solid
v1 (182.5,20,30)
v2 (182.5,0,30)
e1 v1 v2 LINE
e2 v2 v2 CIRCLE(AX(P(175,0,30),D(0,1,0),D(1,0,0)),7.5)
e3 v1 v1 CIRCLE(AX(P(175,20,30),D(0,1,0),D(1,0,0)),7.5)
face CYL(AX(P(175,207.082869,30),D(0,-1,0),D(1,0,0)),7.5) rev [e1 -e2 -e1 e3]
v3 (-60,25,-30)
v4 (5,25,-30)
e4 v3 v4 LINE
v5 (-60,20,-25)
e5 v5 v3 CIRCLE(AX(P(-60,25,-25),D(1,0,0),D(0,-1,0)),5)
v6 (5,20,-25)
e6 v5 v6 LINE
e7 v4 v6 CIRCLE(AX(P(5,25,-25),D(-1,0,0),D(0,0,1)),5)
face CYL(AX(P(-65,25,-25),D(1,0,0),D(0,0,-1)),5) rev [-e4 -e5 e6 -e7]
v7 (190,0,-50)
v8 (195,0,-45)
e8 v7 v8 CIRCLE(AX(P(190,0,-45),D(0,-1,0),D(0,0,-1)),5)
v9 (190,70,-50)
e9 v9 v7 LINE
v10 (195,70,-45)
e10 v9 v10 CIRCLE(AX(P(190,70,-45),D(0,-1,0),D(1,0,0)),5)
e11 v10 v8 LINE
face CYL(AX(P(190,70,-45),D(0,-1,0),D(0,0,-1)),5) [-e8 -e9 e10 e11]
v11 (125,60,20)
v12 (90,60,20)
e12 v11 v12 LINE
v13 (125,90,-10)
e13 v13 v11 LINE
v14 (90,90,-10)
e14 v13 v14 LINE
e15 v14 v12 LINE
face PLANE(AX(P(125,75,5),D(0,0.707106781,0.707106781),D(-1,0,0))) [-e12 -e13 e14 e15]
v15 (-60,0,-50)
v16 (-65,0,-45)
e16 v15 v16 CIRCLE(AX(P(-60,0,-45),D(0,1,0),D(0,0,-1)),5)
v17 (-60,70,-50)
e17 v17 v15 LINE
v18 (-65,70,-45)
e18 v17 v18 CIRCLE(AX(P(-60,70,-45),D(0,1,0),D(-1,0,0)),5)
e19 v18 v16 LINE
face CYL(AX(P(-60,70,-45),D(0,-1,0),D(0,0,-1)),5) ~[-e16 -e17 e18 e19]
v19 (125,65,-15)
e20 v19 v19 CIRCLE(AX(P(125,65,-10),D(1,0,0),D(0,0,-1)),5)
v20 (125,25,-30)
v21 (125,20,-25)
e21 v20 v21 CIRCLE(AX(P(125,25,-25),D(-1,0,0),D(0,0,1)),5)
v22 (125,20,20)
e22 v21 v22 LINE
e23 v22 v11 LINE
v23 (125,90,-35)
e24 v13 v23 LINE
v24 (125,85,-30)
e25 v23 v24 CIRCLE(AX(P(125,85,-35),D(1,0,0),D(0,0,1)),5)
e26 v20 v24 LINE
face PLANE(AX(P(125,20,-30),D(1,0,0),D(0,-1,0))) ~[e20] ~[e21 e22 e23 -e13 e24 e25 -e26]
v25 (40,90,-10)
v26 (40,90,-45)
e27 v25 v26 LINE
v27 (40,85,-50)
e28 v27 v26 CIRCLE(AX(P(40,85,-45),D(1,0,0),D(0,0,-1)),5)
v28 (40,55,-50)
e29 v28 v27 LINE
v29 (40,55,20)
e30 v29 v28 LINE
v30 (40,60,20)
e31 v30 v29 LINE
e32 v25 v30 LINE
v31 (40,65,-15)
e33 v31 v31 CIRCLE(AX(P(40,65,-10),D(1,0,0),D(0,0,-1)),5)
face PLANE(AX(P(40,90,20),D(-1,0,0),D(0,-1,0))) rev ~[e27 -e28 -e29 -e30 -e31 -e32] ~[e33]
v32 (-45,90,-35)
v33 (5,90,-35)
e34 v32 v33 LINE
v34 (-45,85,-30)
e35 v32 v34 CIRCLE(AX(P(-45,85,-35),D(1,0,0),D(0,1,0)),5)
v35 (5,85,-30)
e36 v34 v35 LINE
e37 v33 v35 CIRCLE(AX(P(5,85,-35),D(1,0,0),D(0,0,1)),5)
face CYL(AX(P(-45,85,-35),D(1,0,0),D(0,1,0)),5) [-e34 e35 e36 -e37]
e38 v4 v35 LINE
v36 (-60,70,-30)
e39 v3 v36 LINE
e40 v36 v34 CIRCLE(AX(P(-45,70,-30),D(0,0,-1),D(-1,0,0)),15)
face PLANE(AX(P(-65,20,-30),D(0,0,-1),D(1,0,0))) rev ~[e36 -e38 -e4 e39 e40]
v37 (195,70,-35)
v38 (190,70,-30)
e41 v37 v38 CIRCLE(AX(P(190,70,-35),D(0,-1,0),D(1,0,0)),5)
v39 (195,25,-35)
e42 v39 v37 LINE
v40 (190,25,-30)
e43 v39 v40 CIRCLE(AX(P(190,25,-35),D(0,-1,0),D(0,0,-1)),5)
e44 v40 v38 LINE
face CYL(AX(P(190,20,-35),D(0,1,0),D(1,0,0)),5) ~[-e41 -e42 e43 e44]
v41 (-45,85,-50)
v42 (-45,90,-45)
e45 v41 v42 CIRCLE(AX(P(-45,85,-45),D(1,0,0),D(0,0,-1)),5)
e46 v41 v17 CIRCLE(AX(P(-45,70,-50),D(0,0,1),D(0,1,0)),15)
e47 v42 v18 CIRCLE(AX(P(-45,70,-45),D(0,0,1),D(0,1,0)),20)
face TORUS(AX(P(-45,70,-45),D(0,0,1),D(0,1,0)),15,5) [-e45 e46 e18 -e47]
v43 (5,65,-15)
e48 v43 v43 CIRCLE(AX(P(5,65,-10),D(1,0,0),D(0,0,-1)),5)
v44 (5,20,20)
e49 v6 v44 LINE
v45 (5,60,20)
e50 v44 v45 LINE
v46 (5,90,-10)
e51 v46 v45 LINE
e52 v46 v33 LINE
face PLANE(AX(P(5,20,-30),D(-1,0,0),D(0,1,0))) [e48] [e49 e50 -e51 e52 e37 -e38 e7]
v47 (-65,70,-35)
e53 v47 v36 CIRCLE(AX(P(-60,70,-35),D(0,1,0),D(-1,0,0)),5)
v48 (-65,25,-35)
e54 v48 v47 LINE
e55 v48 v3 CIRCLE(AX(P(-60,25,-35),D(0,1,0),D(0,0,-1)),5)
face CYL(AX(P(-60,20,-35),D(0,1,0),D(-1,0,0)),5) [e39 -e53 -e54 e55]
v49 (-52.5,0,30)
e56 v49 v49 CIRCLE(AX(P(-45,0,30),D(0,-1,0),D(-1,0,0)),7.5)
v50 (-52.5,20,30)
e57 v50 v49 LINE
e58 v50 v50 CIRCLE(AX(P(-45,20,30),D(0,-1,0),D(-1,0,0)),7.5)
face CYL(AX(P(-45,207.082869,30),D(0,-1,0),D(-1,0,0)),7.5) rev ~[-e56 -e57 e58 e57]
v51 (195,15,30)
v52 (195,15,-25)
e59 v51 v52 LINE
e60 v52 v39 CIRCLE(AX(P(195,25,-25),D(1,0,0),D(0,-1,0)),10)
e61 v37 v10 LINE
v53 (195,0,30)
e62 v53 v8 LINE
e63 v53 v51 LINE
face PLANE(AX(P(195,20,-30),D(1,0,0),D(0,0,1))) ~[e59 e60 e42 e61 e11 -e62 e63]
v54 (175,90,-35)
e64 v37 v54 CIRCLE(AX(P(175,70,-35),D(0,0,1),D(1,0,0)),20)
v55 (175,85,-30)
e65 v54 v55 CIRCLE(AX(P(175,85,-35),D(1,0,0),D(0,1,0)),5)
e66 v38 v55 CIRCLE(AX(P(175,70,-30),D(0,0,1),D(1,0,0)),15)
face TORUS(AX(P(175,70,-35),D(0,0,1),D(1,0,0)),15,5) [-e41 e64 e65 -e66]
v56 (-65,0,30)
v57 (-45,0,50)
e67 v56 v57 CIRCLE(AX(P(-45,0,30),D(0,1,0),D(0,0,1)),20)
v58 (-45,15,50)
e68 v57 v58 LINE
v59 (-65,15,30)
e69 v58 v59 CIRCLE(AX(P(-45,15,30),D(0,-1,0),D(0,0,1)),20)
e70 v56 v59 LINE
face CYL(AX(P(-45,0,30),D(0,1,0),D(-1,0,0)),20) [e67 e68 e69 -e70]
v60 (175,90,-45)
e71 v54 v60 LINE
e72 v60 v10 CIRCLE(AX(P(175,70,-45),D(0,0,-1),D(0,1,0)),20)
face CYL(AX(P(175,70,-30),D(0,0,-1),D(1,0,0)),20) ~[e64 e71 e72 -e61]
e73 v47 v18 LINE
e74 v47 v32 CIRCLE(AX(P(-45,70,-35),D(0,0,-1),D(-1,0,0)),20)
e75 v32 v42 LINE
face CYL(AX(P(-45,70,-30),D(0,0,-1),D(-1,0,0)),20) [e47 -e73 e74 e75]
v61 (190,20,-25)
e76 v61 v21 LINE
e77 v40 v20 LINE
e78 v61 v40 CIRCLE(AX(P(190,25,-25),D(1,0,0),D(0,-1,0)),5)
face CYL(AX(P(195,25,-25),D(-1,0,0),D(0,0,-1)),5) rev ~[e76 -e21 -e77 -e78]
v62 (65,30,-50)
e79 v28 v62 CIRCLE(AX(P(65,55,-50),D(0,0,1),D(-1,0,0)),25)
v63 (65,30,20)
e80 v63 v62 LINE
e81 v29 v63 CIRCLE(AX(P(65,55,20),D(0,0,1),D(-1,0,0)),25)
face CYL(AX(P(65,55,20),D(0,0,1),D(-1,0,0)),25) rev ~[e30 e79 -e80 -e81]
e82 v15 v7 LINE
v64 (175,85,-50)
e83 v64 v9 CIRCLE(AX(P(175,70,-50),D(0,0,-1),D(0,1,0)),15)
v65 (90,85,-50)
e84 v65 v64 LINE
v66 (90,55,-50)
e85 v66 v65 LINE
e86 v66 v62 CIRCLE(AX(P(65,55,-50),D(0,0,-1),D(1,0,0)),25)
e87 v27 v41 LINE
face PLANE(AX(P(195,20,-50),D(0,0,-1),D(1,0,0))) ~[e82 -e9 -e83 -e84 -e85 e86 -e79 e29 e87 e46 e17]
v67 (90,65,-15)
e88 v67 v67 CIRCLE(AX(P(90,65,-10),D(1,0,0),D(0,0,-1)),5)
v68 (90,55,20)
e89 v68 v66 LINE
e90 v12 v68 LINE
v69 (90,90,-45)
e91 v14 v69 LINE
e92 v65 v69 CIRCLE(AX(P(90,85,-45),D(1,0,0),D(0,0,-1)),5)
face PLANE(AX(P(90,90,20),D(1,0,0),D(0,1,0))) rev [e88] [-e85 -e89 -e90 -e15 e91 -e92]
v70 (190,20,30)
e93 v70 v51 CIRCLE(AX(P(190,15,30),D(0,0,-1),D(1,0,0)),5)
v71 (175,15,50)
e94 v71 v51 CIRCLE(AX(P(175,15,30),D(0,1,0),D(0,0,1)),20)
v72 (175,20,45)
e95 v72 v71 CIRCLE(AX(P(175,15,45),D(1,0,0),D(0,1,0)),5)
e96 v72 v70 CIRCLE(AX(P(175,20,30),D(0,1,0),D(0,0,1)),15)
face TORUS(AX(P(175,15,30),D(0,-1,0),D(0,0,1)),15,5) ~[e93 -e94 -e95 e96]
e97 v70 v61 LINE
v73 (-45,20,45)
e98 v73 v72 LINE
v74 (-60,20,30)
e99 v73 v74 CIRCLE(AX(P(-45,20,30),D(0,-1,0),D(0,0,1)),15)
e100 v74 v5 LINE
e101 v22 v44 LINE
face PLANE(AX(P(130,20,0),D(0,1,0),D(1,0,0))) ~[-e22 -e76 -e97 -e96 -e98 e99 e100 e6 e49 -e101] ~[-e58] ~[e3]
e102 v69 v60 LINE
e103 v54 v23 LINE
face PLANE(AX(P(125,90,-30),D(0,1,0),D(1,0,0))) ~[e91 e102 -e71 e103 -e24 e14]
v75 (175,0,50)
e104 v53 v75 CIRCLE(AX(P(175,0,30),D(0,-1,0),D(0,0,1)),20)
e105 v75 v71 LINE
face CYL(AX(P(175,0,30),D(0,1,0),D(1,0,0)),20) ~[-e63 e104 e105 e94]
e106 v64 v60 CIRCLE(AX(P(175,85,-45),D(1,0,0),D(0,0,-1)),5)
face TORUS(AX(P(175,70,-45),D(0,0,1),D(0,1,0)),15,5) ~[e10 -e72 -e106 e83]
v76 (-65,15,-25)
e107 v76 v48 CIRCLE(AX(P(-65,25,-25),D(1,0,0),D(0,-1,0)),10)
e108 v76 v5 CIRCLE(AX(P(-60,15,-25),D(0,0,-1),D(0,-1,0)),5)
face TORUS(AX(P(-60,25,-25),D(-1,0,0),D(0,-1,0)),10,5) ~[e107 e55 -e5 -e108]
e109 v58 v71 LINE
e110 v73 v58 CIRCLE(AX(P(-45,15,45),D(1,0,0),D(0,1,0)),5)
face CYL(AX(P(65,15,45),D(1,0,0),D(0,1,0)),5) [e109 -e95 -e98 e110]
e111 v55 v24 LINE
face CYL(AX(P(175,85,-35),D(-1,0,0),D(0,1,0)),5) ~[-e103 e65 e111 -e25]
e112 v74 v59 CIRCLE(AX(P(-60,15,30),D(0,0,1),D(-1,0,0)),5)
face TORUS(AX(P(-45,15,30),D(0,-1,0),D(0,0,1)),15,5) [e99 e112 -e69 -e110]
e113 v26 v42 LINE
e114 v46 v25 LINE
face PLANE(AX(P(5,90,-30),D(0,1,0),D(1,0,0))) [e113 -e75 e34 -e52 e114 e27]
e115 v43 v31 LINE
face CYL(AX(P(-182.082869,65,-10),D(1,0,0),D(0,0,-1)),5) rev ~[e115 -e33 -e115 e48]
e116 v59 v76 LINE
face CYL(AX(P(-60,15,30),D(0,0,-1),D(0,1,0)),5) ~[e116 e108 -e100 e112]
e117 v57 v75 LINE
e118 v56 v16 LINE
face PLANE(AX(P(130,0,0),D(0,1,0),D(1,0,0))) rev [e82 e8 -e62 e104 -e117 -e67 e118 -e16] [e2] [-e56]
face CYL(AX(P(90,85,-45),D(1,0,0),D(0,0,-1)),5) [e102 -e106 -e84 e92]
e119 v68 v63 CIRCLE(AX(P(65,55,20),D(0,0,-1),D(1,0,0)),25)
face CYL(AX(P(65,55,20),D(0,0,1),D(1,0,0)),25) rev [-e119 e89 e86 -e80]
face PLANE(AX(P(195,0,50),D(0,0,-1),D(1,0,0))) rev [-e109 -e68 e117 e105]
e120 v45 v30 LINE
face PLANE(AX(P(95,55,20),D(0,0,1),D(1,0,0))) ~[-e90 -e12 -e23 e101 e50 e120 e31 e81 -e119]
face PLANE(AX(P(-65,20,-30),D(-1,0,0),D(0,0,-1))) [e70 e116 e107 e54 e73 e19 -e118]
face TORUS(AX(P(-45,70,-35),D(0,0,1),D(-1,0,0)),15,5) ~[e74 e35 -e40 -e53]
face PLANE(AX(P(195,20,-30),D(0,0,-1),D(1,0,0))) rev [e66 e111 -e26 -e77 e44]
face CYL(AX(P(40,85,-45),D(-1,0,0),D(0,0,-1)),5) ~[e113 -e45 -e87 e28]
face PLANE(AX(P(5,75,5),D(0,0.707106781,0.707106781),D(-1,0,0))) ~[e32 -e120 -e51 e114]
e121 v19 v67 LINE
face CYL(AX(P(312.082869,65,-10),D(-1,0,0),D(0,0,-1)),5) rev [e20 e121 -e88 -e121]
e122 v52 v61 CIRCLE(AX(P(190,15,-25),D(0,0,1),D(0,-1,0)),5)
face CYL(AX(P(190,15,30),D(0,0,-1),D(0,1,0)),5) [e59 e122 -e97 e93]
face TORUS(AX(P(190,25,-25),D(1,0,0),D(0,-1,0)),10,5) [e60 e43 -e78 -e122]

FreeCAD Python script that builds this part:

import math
import FreeCAD as App
import Part
import Sketcher


def edges_at(feature, points):
    """Names of the edges that pass closest to the given points."""
    edges = feature.Shape.Edges
    near = lambda p: min(range(len(edges)), key=lambda i: edges[i].distToShape(Part.Vertex(*p))[0])
    return sorted({f"Edge{near(p) + 1}" for p in points})


def add_polygon(sketch, points):
    """Adds a closed chain of lines whose ends are joined by coincident constraints."""
    first, n = sketch.GeometryCount, len(points)
    for a, b in zip(points, points[1:] + points[:1]):
        sketch.addGeometry(Part.LineSegment(App.Vector(*a, 0), App.Vector(*b, 0)), False)
    for i in range(n):
        sketch.addConstraint(Sketcher.Constraint("Coincident", first + i, 2, first + (i + 1) % n, 1))

doc = App.newDocument("Part")
body = doc.addObject("PartDesign::Body", "Body")

# Sketch on XZ plane
sketch1 = body.newObject("Sketcher::SketchObject", "Sketch")
sketch1.AttachmentSupport = (doc.getObject("XZ_Plane"), [""])
sketch1.MapMode = "FlatFace"
add_polygon(sketch1, [(-65, -50), (-65, 50), (65, 50), (65, -50)])  # lines 0-3
sketch1.addConstraint([
    Sketcher.Constraint("Vertical", 0),
    Sketcher.Constraint("Horizontal", 1),
    Sketcher.Constraint("Vertical", 2),
    Sketcher.Constraint("Horizontal", 3),
    Sketcher.Constraint("Symmetric", 0, 2, 2, 2, -1, 1),
    Sketcher.Constraint("DistanceX", 1, 1, 1, 2, 130.0),
    Sketcher.Constraint("DistanceY", 0, 1, 0, 2, 100.0),
])
pad1 = body.newObject("PartDesign::Pad", "Pad")
pad1.Profile = sketch1
pad1.Length = 20
pad1.Reversed = True

# Sketch on XZ plane
sketch2 = body.newObject("Sketcher::SketchObject", "Sketch001")
sketch2.AttachmentSupport = (doc.getObject("XZ_Plane"), [""])
sketch2.MapMode = "FlatFace"
sketch2.AttachmentOffset = App.Placement(App.Vector(0, 0, -20), App.Rotation())
add_polygon(sketch2, [(-65, -50), (-65, -30), (65, -30), (65, -50)])  # lines 0-3
sketch2.addConstraint([
    Sketcher.Constraint("Vertical", 0),
    Sketcher.Constraint("Horizontal", 1),
    Sketcher.Constraint("Vertical", 2),
    Sketcher.Constraint("Horizontal", 3),
    Sketcher.Constraint("DistanceX", 1, 1, 1, 2, 130.0),
    Sketcher.Constraint("DistanceY", 0, 1, 0, 2, 20.0),
    Sketcher.Constraint("DistanceX", 0, 2, -1, 1, 65.0),
    Sketcher.Constraint("DistanceY", 0, 2, -1, 1, 30.0),
])
pad2 = body.newObject("PartDesign::Pad", "Pad001")
pad2.Profile = sketch2
pad2.Length = 70
pad2.Reversed = True
doc.recompute()

fillet = body.newObject("PartDesign::Fillet", "Fillet")
fillet.Base = (pad2, edges_at(pad2, [(-65, 10, 50), (-65, 90, -40)]))
fillet.Radius = 20

# Sketch on XY plane
sketch3 = body.newObject("Sketcher::SketchObject", "Sketch002")
sketch3.AttachmentSupport = (doc.getObject("XY_Plane"), [""])
sketch3.MapMode = "FlatFace"
sketch3.AttachmentOffset = App.Placement(App.Vector(0, 0, -30), App.Rotation())
add_polygon(sketch3, [(5, 90), (5, 20), (65, 20), (65, 90)])  # lines 0-3
sketch3.addConstraint([
    Sketcher.Constraint("Vertical", 0),
    Sketcher.Constraint("Horizontal", 1),
    Sketcher.Constraint("Vertical", 2),
    Sketcher.Constraint("Horizontal", 3),
    Sketcher.Constraint("DistanceX", 1, 1, 1, 2, 60.0),
    Sketcher.Constraint("DistanceY", 0, 2, 0, 1, 70.0),
    Sketcher.Constraint("DistanceX", -1, 1, 0, 2, 5.0),
    Sketcher.Constraint("DistanceY", -1, 1, 0, 2, 20.0),
])
pad3 = body.newObject("PartDesign::Pad", "Pad002")
pad3.Profile = sketch3
pad3.Length = 50

# Sketch on XY plane
sketch4 = body.newObject("Sketcher::SketchObject", "Sketch003")
sketch4.AttachmentSupport = (doc.getObject("XY_Plane"), [""])
sketch4.MapMode = "FlatFace"
sketch4.AttachmentOffset = App.Placement(App.Vector(0, 0, 20), App.Rotation())
sketch4.addGeometry([
    Part.LineSegment(App.Vector(40, 90, 0), App.Vector(40, 55, 0)),
    Part.ArcOfCircle(Part.Circle(App.Vector(65, 55, 0), App.Vector(0, 0, 1), 25), math.radians(180), math.radians(270)),
    Part.LineSegment(App.Vector(65, 30, 0), App.Vector(65, 90, 0)),
    Part.LineSegment(App.Vector(65, 90, 0), App.Vector(40, 90, 0)),
], False)
sketch4.addConstraint([
    Sketcher.Constraint("Tangent", 0, 2, 1, 1),
    Sketcher.Constraint("Coincident", 1, 2, 2, 1),
    Sketcher.Constraint("Coincident", 2, 2, 3, 1),
    Sketcher.Constraint("Coincident", 3, 2, 0, 1),
    Sketcher.Constraint("Vertical", 0),
    Sketcher.Constraint("Vertical", 2),
    Sketcher.Constraint("Horizontal", 3),
    Sketcher.Constraint("Radius", 1, 25.0),
    Sketcher.Constraint("DistanceX", 3, 2, 3, 1, 25.0),
    Sketcher.Constraint("DistanceY", 0, 2, 0, 1, 35.0),
    Sketcher.Constraint("DistanceX", -1, 1, 1, 3, 65.0),
    Sketcher.Constraint("DistanceY", -1, 1, 1, 3, 55.0),
])
pocket1 = body.newObject("PartDesign::Pocket", "Pocket")
pocket1.Profile = sketch4
pocket1.Type = "ThroughAll"
doc.recompute()

chamfer = body.newObject("PartDesign::Chamfer", "Chamfer")
chamfer.Base = (pocket1, edges_at(pocket1, [(22.5, 90, 20)]))
chamfer.Size = 30

# Sketch on YZ plane
sketch5 = body.newObject("Sketcher::SketchObject", "Sketch004")
sketch5.AttachmentSupport = (doc.getObject("YZ_Plane"), [""])
sketch5.MapMode = "FlatFace"
sketch5.AttachmentOffset = App.Placement(App.Vector(0, 0, 5), App.Rotation())
sketch5.addGeometry(Part.Circle(App.Vector(65, -10, 0), App.Vector(0, 0, 1), 5), False)
sketch5.addConstraint([
    Sketcher.Constraint("Diameter", 0, 10.0),
    Sketcher.Constraint("DistanceX", -1, 1, 0, 3, 65.0),
    Sketcher.Constraint("DistanceY", 0, 3, -1, 1, 10.0),
])
doc.recompute()
hole = body.newObject("PartDesign::Hole", "Hole")
hole.Profile = sketch5
hole.ThreadType = "None"
hole.Diameter = 10
hole.DepthType = "ThroughAll"
hole.Reversed = True

# Sketch on XZ plane
sketch6 = body.newObject("Sketcher::SketchObject", "Sketch005")
sketch6.AttachmentSupport = (doc.getObject("XZ_Plane"), [""])
sketch6.MapMode = "FlatFace"
sketch6.AttachmentOffset = App.Placement(App.Vector(0, 0, -20), App.Rotation())
sketch6.addGeometry(Part.Circle(App.Vector(-45, 30, 0), App.Vector(0, 0, 1), 7.5), False)
sketch6.addConstraint([
    Sketcher.Constraint("Diameter", 0, 15.0),
    Sketcher.Constraint("DistanceX", 0, 3, -1, 1, 45.0),
    Sketcher.Constraint("DistanceY", -1, 1, 0, 3, 30.0),
])
doc.recompute()
hole2 = body.newObject("PartDesign::Hole", "Hole001")
hole2.Profile = sketch6
hole2.ThreadType = "None"
hole2.Diameter = 15
hole2.DepthType = "ThroughAll"
hole2.Reversed = True
doc.recompute()

fillet2 = body.newObject("PartDesign::Fillet", "Fillet001")
fillet2.Base = (hole2, edges_at(hole2, [
    (-65, 20, 0),
    (10, 20, 50),
    (-65, 35, -50),
    (-2.5, 90, -50),
    (-20, 90, -30),
    (-65, 45, -30),
    (-59.142, 20, 44.142),
    (-59.142, 84.142, -50),
    (-59.142, 84.142, -30),
    (-30, 20, -30),
]))
fillet2.Radius = 5
body2 = doc.addObject("PartDesign::Body", "Body001")
doc.recompute()

body2.BaseFeature = body
doc.recompute()

mirroring = doc.addObject("Part::Mirroring", "Mirroring")
mirroring.Source = body
mirroring.Base = App.Vector(65, 20, 50)
mirroring.Normal = App.Vector(-1, 0, 0)
body3 = doc.addObject("PartDesign::Body", "Body002")
body3.BaseFeature = mirroring
boolean = body2.newObject("PartDesign::Boolean", "Boolean")
boolean.Type = "Fuse"
boolean.addObjects([body3])
doc.recompute()
mirroring.Visibility = False

doc.recompute()
